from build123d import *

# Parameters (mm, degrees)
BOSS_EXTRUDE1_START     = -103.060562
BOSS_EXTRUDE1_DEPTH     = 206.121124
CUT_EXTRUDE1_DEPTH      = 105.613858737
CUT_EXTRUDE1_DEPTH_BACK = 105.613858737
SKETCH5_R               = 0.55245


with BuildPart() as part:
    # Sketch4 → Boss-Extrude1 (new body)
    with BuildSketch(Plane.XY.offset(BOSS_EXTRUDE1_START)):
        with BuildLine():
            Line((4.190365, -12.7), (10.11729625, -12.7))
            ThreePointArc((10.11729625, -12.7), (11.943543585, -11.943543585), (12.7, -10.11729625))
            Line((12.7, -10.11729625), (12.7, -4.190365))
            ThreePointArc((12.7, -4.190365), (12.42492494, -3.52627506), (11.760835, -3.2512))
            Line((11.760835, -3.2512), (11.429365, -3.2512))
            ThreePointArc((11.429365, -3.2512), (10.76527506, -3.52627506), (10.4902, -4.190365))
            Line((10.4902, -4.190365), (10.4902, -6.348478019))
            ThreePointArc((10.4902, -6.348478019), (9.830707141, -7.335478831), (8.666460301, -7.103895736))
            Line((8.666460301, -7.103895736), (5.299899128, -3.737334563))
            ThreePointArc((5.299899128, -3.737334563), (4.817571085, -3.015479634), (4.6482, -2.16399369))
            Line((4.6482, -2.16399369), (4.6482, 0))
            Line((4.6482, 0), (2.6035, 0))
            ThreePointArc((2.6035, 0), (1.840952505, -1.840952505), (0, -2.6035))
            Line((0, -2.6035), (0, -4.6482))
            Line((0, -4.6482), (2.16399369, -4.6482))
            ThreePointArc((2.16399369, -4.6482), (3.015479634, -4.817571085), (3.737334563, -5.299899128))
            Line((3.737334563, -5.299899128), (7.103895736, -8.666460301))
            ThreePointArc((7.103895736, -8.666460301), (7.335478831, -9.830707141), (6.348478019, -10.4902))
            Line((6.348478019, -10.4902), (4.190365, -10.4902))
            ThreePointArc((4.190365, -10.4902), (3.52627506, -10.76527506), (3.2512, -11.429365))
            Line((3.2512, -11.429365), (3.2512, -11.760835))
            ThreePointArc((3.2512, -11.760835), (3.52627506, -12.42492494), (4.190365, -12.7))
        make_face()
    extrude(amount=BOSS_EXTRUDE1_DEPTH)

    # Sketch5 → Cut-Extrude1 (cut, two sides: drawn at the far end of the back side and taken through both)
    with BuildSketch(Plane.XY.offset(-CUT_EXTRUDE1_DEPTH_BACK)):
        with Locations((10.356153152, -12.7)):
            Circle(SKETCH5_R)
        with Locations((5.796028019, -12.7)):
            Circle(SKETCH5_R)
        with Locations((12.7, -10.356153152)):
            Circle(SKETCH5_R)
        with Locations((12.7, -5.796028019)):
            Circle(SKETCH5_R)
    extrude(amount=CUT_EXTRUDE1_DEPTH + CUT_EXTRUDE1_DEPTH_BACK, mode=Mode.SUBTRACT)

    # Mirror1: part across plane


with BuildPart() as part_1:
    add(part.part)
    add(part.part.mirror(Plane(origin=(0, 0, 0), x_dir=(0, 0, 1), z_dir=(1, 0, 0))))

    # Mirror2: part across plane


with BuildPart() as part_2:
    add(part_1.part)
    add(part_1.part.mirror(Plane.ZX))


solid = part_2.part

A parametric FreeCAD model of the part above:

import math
import FreeCAD as App
import Part
import Sketcher
from FreeCAD import Vector
Q = App.Units.Quantity

doc = App.newDocument("Part")
body = doc.addObject("PartDesign::Body", "Body")

# Sketch on XY plane
sketch1 = body.newObject("Sketcher::SketchObject", "Sketch")
sketch1.AttachmentSupport = (doc.getObject("XY_Plane"), [""])
sketch1.MapMode = "FlatFace"
sketch1.AttachmentOffset = App.Placement(Vector(0, 0, -103.060562), App.Rotation())
sketch1.addGeometry(Part.LineSegment(Vector(4.19, -12.7, 0), Vector(10.12, -12.7, 0)), False)
sketch1.addGeometry(Part.ArcOfCircle(Part.Circle(Vector(10.12, -10.12, 0), Vector(0, 0, 1), 2.58), math.radians(-90), math.radians(0)), False)
sketch1.addGeometry(Part.LineSegment(Vector(12.7, -10.12, 0), Vector(12.7, -4.19, 0)), False)
sketch1.addGeometry(Part.ArcOfCircle(Part.Circle(Vector(11.76, -4.19, 0), Vector(0, 0, 1), 0.94), math.radians(0), math.radians(90)), False)
sketch1.addGeometry(Part.LineSegment(Vector(11.76, -3.25, 0), Vector(11.43, -3.25, 0)), False)
sketch1.addGeometry(Part.ArcOfCircle(Part.Circle(Vector(11.43, -4.19, 0), Vector(0, 0, 1), 0.94), math.radians(90), math.radians(180)), False)
sketch1.addGeometry(Part.LineSegment(Vector(10.49, -4.19, 0), Vector(10.49, -6.35, 0)), False)
sketch1.addGeometry(Part.ArcOfCircle(Part.Circle(Vector(9.42, -6.35, 0), Vector(0, 0, 1), 1.07), math.radians(-135), math.radians(0)), False)
sketch1.addGeometry(Part.LineSegment(Vector(8.67, -7.1, 0), Vector(5.3, -3.74, 0)), False)
sketch1.addGeometry(Part.ArcOfCircle(Part.Circle(Vector(6.87, -2.16, 0), Vector(0, 0, 1), 2.23), math.radians(-180), math.radians(-135)), False)
sketch1.addGeometry(Part.LineSegment(Vector(4.65, -2.16, 0), Vector(4.65, 0, 0)), False)
sketch1.addGeometry(Part.LineSegment(Vector(4.65, 0, 0), Vector(2.6, 0, 0)), False)
sketch1.addGeometry(Part.ArcOfCircle(Part.Circle(Vector(0, 0, 0), Vector(0, 0, 1), 2.6), math.radians(-90), math.radians(0)), False)
sketch1.addGeometry(Part.LineSegment(Vector(0, -2.6, 0), Vector(0, -4.65, 0)), False)
sketch1.addGeometry(Part.LineSegment(Vector(0, -4.65, 0), Vector(2.16, -4.65, 0)), False)
sketch1.addGeometry(Part.ArcOfCircle(Part.Circle(Vector(2.16, -6.87, 0), Vector(0, 0, 1), 2.23), math.radians(45), math.radians(90)), False)
sketch1.addGeometry(Part.LineSegment(Vector(3.74, -5.3, 0), Vector(7.1, -8.67, 0)), False)
sketch1.addGeometry(Part.ArcOfCircle(Part.Circle(Vector(6.35, -9.42, 0), Vector(0, 0, 1), 1.07), math.radians(-90), math.radians(45)), False)
sketch1.addGeometry(Part.LineSegment(Vector(6.35, -10.49, 0), Vector(4.19, -10.49, 0)), False)
sketch1.addGeometry(Part.ArcOfCircle(Part.Circle(Vector(4.19, -11.43, 0), Vector(0, 0, 1), 0.94), math.radians(90), math.radians(180)), False)
sketch1.addGeometry(Part.LineSegment(Vector(3.25, -11.43, 0), Vector(3.25, -11.76, 0)), False)
sketch1.addGeometry(Part.ArcOfCircle(Part.Circle(Vector(4.19, -11.76, 0), Vector(0, 0, 1), 0.94), math.radians(-180), math.radians(-90)), False)
sketch1.addConstraint(Sketcher.Constraint("Tangent", 0, 2, 1, 1))
sketch1.addConstraint(Sketcher.Constraint("Tangent", 1, 2, 2, 1))
sketch1.addConstraint(Sketcher.Constraint("Tangent", 2, 2, 3, 1))
sketch1.addConstraint(Sketcher.Constraint("Tangent", 3, 2, 4, 1))
sketch1.addConstraint(Sketcher.Constraint("Tangent", 4, 2, 5, 1))
sketch1.addConstraint(Sketcher.Constraint("Tangent", 5, 2, 6, 1))
sketch1.addConstraint(Sketcher.Constraint("Tangent", 6, 2, 7, 2))
sketch1.addConstraint(Sketcher.Constraint("Tangent", 7, 1, 8, 1))
sketch1.addConstraint(Sketcher.Constraint("Tangent", 8, 2, 9, 2))
sketch1.addConstraint(Sketcher.Constraint("Tangent", 9, 1, 10, 1))
sketch1.addConstraint(Sketcher.Constraint("Coincident", 10, 2, 11, 1))
sketch1.addConstraint(Sketcher.Constraint("Coincident", 11, 2, 12, 2))
sketch1.addConstraint(Sketcher.Constraint("Coincident", 12, 1, 13, 1))
sketch1.addConstraint(Sketcher.Constraint("Coincident", 13, 2, 14, 1))
sketch1.addConstraint(Sketcher.Constraint("Tangent", 14, 2, 15, 2))
sketch1.addConstraint(Sketcher.Constraint("Tangent", 15, 1, 16, 1))
sketch1.addConstraint(Sketcher.Constraint("Tangent", 16, 2, 17, 2))
sketch1.addConstraint(Sketcher.Constraint("Tangent", 17, 1, 18, 1))
sketch1.addConstraint(Sketcher.Constraint("Tangent", 18, 2, 19, 1))
sketch1.addConstraint(Sketcher.Constraint("Tangent", 19, 2, 20, 1))
sketch1.addConstraint(Sketcher.Constraint("Tangent", 20, 2, 21, 1))
sketch1.addConstraint(Sketcher.Constraint("Tangent", 21, 2, 0, 1))
sketch1.addConstraint(Sketcher.Constraint("Horizontal", 0))
sketch1.addConstraint(Sketcher.Constraint("Vertical", 2))
sketch1.addConstraint(Sketcher.Constraint("Horizontal", 4))
sketch1.addConstraint(Sketcher.Constraint("Vertical", 6))
sketch1.addConstraint(Sketcher.Constraint("Vertical", 10))
sketch1.addConstraint(Sketcher.Constraint("Horizontal", 11))
sketch1.addConstraint(Sketcher.Constraint("Vertical", 13))
sketch1.addConstraint(Sketcher.Constraint("Horizontal", 14))
sketch1.addConstraint(Sketcher.Constraint("Horizontal", 18))
sketch1.addConstraint(Sketcher.Constraint("Vertical", 20))
sketch1.addConstraint(Sketcher.Constraint("Coincident", 12, 3, -1, 1))
sketch1.addConstraint(Sketcher.Constraint("Equal", 3, 5))
sketch1.addConstraint(Sketcher.Constraint("Equal", 9, 15))
sketch1.addConstraint(Sketcher.Constraint("Equal", 7, 17))
sketch1.addConstraint(Sketcher.Constraint("Equal", 5, 19))
sketch1.addConstraint(Sketcher.Constraint("Equal", 19, 21))
sketch1.addConstraint(Sketcher.Constraint("PointOnObject", 10, 2, -1))
sketch1.addConstraint(Sketcher.Constraint("PointOnObject", 12, 1, -2))
sketch1.addConstraint(Sketcher.Constraint("Parallel", 8, 16))
sketch1.addConstraint(Sketcher.Constraint("Equal", 0, 2))
sketch1.addConstraint(Sketcher.Constraint("Equal", 18, 6))
sketch1.addConstraint(Sketcher.Constraint("Equal", 14, 10))
sketch1.addConstraint(Sketcher.Constraint("Equal", 11, 13))
sketch1.addConstraint(Sketcher.Constraint("Equal", 4, 20))
sketch1.addConstraint(Sketcher.Constraint("Equal", 8, 16))
sketch1.addConstraint(Sketcher.Constraint("DistanceY", 0, 2, -1, 1, Q("0.5 in")))
sketch1.addConstraint(Sketcher.Constraint("Radius", 9, Q("0.0876 in")))
sketch1.addConstraint(Sketcher.Constraint("Radius", 12, Q("0.1025 in")))
sketch1.addConstraint(Sketcher.Constraint("DistanceX", 9, 1, 5, 2, Q("0.23 in")))
sketch1.addConstraint(Sketcher.Constraint("DistanceX", 11, 2, 11, 1, Q("0.0805 in")))
sketch1.addConstraint(Sketcher.Constraint("DistanceY", 3, 2, -1, 1, Q("0.128 in")))
sketch1.addConstraint(Sketcher.Constraint("Radius", 7, Q("1.068322 mm")))
sketch1.addConstraint(Sketcher.Constraint("DistanceX", 17, 3, 7, 3, Q("0.121 in")))
sketch1.addConstraint(Sketcher.Constraint("Radius", 1, Q("2.582704 mm")))
sketch1.addConstraint(Sketcher.Constraint("Radius", 3, Q("0.939165 mm")))
pad1 = body.newObject("PartDesign::Pad", "Pad")
pad1.Profile = sketch1
pad1.Length = 206.121124

# Sketch on XY plane
sketch2 = body.newObject("Sketcher::SketchObject", "Sketch001")
sketch2.AttachmentSupport = (doc.getObject("XY_Plane"), [""])
sketch2.MapMode = "FlatFace"
sketch2.addGeometry(Part.Circle(Vector(10.4, -12.7, 0), Vector(0, 0, 1), 0.6), False)
sketch2.addGeometry(Part.Circle(Vector(5.8, -12.7, 0), Vector(0, 0, 1), 0.6), False)
sketch2.addGeometry(Part.Circle(Vector(12.7, -10.4, 0), Vector(0, 0, 1), 0.6), False)
sketch2.addGeometry(Part.Circle(Vector(12.7, -5.8, 0), Vector(0, 0, 1), 0.6), False)
sketch2.addConstraint(Sketcher.Constraint("Equal", 0, 1))
sketch2.addConstraint(Sketcher.Constraint("Equal", 1, 2))
sketch2.addConstraint(Sketcher.Constraint("Equal", 2, 3))
sketch2.addConstraint(Sketcher.Constraint("Horizontal", 0, 3, 1, 3))
sketch2.addConstraint(Sketcher.Constraint("Vertical", 2, 3, 3, 3))
sketch2.addConstraint(Sketcher.Constraint("Diameter", 0, Q("0.0435 in")))
sketch2.addConstraint(Sketcher.Constraint("DistanceY", 0, 3, -1, 1, Q("0.5 in")))
sketch2.addConstraint(Sketcher.Constraint("DistanceX", -1, 1, 2, 3, Q("0.5 in")))
sketch2.addConstraint(Sketcher.Constraint("DistanceX", -1, 1, 1, 3, Q("5.796028 mm")))
sketch2.addConstraint(Sketcher.Constraint("DistanceY", 3, 3, -1, 1, Q("5.796028 mm")))
sketch2.addConstraint(Sketcher.Constraint("DistanceX", -1, 1, 0, 3, Q("10.356153 mm")))
sketch2.addConstraint(Sketcher.Constraint("DistanceY", 2, 3, -1, 1, Q("10.356153 mm")))
pocket1 = body.newObject("PartDesign::Pocket", "Pocket")
pocket1.Profile = sketch2
pocket1.Type = "ThroughAll"
pocket1.Midplane = True
body2 = doc.addObject("PartDesign::Body", "Body001")
doc.recompute()

body2.BaseFeature = body
doc.recompute()

mirroring = doc.addObject("Part::Mirroring", "Mirroring")
mirroring.Source = body
mirroring.Base = Vector(0, 0, 0)
mirroring.Normal = Vector(1, 0, 0)
body3 = doc.addObject("PartDesign::Body", "Body002")
body3.BaseFeature = mirroring
boolean = body2.newObject("PartDesign::Boolean", "Boolean")
boolean.Type = "Fuse"
boolean.addObjects([body3])
doc.recompute()
body4 = doc.addObject("PartDesign::Body", "Body003")
doc.recompute()

body4.BaseFeature = body2
doc.recompute()

mirroring2 = doc.addObject("Part::Mirroring", "Mirroring001")
mirroring2.Source = body2
mirroring2.Base = Vector(0, 0, 0)
mirroring2.Normal = Vector(0, 1, 0)
body5 = doc.addObject("PartDesign::Body", "Body004")
body5.BaseFeature = mirroring2
boolean2 = body4.newObject("PartDesign::Boolean", "Boolean001")
boolean2.Type = "Fuse"
boolean2.addObjects([body5])
doc.recompute()
mirroring.Visibility = False
mirroring2.Visibility = False

doc.recompute()
